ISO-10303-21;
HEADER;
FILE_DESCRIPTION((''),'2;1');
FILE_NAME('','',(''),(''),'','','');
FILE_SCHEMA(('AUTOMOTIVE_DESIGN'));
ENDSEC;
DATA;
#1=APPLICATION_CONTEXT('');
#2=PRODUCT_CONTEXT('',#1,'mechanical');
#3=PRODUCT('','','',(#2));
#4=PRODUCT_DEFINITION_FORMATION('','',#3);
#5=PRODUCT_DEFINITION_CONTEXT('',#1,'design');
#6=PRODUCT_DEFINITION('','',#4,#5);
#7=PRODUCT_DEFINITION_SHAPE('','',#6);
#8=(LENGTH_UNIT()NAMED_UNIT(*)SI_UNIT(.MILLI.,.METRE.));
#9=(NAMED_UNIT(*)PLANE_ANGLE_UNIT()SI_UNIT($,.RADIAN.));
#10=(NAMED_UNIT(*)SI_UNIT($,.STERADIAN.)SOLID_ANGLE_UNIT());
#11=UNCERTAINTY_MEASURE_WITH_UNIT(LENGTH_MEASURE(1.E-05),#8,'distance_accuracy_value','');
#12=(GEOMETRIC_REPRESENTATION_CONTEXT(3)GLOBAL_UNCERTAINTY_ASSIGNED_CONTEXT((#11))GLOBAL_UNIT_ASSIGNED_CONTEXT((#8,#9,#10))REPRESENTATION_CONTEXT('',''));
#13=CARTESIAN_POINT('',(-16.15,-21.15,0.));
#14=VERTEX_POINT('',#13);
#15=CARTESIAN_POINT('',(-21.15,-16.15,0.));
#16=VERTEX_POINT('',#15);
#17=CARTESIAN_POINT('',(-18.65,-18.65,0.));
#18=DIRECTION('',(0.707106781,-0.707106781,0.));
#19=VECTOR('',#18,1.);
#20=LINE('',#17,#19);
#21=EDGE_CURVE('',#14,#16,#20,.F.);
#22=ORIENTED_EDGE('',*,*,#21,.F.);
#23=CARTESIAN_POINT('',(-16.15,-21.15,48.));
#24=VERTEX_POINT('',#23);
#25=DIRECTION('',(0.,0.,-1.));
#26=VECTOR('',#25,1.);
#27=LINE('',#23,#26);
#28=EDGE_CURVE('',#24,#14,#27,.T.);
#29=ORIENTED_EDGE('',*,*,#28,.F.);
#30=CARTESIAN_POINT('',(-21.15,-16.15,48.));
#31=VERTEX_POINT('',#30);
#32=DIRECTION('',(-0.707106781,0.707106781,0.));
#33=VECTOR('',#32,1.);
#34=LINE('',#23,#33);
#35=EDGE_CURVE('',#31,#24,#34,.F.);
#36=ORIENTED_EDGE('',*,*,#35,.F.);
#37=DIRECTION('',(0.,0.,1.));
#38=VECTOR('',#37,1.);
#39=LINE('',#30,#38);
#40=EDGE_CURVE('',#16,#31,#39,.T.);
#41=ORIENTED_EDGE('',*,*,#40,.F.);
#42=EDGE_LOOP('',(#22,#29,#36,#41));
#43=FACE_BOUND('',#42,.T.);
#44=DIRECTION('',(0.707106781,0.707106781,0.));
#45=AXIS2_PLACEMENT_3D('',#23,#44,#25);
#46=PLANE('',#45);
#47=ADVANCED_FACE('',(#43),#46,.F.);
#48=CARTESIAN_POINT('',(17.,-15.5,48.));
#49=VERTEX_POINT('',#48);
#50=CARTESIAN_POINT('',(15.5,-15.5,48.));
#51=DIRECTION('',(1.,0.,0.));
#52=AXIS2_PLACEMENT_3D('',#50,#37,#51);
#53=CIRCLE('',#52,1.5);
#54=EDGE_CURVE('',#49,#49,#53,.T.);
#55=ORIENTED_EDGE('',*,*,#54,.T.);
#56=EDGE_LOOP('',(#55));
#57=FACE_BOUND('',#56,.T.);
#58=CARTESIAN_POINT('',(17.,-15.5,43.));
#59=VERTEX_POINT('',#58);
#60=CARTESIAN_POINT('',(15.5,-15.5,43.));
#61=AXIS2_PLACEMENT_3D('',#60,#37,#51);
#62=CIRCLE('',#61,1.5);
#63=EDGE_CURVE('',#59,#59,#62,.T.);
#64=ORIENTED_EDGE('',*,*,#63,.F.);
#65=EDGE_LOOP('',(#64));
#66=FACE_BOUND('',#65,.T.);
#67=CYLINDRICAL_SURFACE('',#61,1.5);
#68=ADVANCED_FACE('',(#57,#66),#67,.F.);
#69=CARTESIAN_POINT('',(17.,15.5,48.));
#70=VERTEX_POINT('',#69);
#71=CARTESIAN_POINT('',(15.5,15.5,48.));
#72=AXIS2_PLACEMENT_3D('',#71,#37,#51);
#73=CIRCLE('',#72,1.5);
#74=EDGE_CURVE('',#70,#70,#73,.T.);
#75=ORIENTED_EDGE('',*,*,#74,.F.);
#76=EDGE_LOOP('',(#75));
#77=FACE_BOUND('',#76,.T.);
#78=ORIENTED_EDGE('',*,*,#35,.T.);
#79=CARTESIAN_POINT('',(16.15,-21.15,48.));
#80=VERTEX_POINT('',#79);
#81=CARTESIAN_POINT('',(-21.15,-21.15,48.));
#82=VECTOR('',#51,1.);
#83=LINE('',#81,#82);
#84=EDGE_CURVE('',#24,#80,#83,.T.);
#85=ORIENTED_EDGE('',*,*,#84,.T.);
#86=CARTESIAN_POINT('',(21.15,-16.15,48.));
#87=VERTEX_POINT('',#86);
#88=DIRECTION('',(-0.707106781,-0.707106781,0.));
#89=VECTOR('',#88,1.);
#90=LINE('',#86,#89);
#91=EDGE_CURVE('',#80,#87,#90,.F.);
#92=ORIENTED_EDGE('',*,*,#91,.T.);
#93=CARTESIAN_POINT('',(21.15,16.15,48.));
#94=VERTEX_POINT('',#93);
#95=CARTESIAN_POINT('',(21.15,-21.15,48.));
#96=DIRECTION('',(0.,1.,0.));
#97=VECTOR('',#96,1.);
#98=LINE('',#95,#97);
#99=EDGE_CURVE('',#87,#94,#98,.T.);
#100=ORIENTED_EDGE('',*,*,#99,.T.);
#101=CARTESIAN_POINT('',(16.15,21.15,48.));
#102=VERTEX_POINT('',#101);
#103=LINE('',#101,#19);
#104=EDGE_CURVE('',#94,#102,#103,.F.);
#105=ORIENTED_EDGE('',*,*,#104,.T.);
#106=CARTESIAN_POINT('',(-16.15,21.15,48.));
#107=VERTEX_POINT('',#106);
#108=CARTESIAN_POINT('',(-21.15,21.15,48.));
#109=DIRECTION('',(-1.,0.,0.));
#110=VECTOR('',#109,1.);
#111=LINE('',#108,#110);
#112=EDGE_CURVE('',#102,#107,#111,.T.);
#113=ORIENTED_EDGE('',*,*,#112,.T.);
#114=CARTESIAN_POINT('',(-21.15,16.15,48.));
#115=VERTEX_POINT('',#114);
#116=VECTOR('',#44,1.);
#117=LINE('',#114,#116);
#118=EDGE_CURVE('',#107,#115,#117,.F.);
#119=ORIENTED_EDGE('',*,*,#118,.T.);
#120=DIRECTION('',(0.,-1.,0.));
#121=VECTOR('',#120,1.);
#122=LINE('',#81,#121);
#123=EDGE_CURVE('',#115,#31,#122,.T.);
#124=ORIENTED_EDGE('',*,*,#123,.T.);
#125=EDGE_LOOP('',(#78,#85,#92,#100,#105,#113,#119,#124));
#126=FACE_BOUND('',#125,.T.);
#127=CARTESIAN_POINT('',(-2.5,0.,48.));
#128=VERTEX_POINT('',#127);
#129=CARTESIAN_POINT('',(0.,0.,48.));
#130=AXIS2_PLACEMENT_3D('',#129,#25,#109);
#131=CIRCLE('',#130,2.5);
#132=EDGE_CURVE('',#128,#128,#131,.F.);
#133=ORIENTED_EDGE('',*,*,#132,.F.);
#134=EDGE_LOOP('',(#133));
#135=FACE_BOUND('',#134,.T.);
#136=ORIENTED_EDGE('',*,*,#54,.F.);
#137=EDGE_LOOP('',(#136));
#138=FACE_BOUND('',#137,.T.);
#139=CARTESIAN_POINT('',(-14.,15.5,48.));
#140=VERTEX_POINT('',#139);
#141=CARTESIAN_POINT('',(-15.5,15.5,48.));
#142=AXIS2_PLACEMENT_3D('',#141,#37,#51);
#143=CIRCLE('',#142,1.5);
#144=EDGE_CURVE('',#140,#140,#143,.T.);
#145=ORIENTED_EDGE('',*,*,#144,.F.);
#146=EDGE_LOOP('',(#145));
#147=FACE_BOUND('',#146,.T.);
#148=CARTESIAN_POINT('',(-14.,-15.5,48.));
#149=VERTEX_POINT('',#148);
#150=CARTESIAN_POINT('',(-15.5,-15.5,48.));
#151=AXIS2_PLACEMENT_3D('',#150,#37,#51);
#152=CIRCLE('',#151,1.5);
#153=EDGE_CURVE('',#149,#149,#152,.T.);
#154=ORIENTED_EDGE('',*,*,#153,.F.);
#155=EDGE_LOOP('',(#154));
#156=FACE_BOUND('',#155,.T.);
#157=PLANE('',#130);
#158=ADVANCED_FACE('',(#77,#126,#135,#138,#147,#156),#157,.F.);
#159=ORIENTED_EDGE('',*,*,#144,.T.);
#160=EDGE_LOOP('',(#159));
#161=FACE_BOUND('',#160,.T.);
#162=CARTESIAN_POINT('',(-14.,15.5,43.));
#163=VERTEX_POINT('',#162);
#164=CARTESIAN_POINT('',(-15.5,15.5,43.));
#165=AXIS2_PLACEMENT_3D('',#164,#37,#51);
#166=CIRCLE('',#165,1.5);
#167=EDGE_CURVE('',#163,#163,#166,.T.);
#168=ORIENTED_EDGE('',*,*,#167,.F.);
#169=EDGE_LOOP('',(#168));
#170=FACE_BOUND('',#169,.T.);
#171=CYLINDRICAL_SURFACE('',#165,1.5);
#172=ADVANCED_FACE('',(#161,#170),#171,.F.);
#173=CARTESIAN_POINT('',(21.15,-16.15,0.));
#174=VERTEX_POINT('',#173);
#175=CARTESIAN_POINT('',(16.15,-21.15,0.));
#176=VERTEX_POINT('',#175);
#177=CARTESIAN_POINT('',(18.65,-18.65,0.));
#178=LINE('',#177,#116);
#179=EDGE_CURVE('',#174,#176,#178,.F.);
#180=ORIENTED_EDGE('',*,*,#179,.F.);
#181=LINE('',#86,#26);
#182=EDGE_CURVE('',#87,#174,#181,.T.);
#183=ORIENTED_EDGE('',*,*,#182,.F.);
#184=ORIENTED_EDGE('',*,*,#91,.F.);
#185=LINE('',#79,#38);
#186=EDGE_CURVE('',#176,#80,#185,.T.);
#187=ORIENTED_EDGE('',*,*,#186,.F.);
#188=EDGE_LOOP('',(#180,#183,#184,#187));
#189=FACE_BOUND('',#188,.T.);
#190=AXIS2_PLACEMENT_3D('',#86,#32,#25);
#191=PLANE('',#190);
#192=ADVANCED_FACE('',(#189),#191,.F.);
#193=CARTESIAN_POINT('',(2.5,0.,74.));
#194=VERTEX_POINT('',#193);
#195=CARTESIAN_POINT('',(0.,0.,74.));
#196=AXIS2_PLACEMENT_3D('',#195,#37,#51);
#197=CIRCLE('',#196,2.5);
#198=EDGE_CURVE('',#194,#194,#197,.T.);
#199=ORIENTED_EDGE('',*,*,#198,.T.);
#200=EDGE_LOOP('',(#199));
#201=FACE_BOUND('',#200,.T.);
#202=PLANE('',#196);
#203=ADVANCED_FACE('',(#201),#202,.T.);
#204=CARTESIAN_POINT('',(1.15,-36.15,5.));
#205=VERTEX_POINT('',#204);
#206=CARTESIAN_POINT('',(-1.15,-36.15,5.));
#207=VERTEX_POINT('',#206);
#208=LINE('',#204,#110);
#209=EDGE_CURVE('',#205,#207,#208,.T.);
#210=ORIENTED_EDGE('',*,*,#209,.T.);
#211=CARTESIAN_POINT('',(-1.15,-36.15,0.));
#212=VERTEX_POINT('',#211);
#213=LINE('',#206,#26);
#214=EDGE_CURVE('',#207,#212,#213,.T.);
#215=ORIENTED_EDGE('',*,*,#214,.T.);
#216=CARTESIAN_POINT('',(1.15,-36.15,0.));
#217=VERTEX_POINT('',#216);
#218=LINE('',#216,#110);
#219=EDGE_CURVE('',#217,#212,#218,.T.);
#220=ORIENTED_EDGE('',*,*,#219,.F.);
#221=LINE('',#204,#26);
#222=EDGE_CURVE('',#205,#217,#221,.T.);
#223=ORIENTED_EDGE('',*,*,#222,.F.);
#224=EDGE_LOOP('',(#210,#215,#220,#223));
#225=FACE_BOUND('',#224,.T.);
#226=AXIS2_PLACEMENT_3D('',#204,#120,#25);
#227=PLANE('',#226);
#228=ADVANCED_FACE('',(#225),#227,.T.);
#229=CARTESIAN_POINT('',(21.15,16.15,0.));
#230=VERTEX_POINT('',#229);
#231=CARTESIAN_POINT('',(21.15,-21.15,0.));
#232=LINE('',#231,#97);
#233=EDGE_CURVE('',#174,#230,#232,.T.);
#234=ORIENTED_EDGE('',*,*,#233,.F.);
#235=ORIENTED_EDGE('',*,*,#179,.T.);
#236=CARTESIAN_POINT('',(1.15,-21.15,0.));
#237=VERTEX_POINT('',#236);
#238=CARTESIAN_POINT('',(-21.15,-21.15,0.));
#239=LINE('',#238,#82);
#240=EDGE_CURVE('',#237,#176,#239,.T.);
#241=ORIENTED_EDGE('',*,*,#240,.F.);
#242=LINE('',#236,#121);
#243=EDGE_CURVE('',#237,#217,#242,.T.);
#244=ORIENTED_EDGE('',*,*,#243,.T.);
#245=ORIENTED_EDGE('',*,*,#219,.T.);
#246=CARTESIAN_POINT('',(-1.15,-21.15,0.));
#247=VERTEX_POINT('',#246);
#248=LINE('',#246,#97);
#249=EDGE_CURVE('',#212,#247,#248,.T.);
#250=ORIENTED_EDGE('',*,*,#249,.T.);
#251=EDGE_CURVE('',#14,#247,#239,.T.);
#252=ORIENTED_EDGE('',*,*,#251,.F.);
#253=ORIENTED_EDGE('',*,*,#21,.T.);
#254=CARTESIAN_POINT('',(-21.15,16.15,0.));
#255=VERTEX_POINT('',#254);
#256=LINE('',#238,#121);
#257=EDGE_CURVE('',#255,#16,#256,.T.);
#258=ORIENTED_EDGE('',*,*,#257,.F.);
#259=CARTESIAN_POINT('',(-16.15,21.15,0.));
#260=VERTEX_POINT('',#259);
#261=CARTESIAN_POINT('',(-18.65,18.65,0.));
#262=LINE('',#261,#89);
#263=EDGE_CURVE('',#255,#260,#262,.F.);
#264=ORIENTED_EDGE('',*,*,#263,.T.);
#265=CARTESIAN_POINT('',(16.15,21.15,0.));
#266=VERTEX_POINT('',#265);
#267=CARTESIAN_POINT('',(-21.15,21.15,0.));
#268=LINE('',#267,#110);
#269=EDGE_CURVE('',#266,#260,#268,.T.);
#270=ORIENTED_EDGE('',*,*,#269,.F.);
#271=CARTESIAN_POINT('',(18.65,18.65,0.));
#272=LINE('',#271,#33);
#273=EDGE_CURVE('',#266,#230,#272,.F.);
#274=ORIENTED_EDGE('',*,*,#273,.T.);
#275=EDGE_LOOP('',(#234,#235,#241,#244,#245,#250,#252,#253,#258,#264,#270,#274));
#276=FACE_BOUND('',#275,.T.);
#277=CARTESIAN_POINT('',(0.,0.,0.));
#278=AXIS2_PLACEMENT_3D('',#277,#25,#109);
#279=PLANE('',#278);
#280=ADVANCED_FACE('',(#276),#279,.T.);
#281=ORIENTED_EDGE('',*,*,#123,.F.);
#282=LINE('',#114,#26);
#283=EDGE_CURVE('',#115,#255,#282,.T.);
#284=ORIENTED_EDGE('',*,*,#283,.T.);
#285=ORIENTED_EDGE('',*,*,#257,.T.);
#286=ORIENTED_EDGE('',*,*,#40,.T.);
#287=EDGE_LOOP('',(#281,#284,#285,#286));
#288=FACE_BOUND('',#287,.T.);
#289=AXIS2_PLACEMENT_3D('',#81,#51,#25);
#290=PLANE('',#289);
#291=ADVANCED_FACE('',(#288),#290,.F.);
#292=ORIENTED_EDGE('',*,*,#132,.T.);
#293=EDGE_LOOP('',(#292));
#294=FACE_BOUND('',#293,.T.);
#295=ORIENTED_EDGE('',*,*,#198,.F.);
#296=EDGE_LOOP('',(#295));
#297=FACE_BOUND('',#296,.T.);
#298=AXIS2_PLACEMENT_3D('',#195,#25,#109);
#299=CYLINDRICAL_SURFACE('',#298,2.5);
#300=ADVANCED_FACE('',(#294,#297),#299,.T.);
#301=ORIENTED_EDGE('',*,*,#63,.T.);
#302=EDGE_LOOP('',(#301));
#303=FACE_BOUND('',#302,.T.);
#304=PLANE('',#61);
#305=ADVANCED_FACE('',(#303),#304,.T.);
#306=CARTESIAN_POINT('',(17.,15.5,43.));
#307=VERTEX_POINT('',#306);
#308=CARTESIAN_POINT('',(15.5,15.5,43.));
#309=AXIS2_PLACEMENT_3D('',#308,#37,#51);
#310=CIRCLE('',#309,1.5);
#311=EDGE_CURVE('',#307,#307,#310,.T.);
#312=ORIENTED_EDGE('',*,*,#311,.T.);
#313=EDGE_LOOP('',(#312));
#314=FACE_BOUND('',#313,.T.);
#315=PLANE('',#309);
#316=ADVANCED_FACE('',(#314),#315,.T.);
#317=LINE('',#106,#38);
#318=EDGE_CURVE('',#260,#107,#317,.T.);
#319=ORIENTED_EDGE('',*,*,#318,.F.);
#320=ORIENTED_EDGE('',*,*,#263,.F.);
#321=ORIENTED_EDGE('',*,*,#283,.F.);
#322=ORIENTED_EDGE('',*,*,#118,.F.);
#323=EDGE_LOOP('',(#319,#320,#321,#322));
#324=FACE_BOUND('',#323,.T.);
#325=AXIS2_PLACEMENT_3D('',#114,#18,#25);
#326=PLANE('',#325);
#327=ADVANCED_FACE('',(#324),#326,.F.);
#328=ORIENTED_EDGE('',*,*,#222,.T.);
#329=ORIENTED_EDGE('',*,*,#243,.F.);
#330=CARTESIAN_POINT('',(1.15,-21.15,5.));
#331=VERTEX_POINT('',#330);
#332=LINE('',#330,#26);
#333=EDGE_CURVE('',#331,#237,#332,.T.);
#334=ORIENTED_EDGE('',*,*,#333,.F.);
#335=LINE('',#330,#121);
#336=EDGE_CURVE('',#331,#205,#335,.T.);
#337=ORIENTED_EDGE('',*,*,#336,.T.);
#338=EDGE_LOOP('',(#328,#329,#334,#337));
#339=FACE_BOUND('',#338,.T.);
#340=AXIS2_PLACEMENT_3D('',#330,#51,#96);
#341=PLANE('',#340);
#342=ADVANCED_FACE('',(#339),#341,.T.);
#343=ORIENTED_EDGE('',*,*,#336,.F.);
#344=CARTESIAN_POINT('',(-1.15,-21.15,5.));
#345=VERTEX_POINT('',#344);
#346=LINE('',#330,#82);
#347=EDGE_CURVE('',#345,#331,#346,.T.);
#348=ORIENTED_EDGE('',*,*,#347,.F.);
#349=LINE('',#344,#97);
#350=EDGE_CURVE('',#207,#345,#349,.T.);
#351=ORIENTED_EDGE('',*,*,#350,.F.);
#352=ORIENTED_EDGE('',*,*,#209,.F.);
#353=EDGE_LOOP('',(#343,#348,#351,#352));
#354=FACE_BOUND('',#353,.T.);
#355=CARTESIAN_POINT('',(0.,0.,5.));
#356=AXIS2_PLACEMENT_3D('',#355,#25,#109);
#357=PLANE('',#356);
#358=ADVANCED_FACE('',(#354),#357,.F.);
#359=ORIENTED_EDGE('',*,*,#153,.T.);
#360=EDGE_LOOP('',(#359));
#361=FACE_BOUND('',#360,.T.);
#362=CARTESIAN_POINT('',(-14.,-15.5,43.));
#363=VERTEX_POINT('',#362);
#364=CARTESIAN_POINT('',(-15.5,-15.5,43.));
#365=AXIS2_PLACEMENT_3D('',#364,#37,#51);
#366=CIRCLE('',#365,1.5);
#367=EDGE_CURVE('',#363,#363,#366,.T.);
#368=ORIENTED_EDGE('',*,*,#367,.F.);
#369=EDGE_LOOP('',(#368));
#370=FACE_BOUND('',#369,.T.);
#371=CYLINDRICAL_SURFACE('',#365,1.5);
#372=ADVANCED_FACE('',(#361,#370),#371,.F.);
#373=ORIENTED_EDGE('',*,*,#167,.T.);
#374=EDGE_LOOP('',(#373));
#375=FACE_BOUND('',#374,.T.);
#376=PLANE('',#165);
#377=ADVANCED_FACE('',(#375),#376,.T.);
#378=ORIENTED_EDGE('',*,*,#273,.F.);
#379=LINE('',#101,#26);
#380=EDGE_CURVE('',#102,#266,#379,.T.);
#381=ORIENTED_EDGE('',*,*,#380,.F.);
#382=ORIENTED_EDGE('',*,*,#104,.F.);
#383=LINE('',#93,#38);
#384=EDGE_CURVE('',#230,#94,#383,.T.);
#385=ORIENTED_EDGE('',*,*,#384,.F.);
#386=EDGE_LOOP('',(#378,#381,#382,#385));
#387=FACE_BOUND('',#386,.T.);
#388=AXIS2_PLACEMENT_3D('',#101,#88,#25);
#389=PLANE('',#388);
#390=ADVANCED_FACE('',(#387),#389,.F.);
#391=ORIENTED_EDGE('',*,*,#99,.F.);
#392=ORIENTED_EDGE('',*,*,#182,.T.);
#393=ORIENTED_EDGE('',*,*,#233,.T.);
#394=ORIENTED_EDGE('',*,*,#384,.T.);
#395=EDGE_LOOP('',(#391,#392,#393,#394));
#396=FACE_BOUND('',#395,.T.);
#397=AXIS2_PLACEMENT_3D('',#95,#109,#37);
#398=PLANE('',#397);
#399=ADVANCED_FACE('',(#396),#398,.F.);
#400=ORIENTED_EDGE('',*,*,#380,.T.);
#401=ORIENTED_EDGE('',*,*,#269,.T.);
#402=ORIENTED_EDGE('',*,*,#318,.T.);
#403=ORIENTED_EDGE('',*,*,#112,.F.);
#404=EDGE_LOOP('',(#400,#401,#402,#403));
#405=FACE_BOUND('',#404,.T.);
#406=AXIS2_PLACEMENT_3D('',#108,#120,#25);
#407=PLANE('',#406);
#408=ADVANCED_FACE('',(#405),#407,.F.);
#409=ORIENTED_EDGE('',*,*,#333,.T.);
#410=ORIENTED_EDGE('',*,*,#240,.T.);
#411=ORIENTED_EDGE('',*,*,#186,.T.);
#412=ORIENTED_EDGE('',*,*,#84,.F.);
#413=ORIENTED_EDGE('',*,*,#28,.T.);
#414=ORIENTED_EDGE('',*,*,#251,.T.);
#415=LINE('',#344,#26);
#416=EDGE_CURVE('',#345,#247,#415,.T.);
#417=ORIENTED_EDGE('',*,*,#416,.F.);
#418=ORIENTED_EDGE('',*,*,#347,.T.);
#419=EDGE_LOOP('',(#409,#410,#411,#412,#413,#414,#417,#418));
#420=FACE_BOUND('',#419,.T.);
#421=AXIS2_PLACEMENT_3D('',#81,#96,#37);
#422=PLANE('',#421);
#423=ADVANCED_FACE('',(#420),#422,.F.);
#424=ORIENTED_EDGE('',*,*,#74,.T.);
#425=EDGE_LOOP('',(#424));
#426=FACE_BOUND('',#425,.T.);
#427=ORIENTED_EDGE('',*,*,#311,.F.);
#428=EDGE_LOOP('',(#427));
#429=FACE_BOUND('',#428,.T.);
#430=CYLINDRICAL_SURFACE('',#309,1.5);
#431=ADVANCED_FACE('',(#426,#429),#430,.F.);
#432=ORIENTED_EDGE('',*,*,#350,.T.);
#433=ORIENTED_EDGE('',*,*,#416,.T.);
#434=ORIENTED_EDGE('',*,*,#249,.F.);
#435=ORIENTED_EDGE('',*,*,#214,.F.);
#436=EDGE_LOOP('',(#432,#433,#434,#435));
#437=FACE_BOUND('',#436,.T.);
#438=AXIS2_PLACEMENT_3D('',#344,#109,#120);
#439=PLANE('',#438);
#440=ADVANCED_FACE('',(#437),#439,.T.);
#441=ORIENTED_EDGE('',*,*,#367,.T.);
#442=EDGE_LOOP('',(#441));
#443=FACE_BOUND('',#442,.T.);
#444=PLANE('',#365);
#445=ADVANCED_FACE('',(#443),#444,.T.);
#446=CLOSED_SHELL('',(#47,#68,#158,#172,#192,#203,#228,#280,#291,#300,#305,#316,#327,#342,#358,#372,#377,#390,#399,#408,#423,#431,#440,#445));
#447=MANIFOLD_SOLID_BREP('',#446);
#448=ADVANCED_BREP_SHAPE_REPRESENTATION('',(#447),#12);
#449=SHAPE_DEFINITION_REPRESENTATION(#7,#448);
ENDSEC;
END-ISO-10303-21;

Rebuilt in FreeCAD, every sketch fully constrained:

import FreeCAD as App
import Part
import Sketcher

V = App.Vector


def edges_at(feature, points):
    """Names of the edges that pass closest to the given points."""
    edges = feature.Shape.Edges
    near = lambda p: min(range(len(edges)), key=lambda i: edges[i].distToShape(Part.Vertex(*p))[0])
    return sorted({f"Edge{near(p) + 1}" for p in points})


def add_polygon(sketch, points):
    """Adds a closed chain of lines whose ends are joined by coincident constraints."""
    first, n = sketch.GeometryCount, len(points)
    for a, b in zip(points, points[1:] + points[:1]):
        sketch.addGeometry(Part.LineSegment(App.Vector(*a, 0), App.Vector(*b, 0)), False)
    for i in range(n):
        sketch.addConstraint(Sketcher.Constraint("Coincident", first + i, 2, first + (i + 1) % n, 1))

doc = App.newDocument("Part")
body = doc.addObject("PartDesign::Body", "Body")

sketch1 = doc.addObject("Sketcher::SketchObject", "Sketch")
body.addObject(sketch1)
sketch1.AttachmentSupport = (doc.XY_Plane, [""])
sketch1.MapMode = "FlatFace"
add_polygon(sketch1, [(-21, 21), (-21, -21), (21, -21), (21, 21)])
sketch1.addConstraint([
    Sketcher.Constraint("Vertical", 0),
    Sketcher.Constraint("Horizontal", 1),
    Sketcher.Constraint("Vertical", 2),
    Sketcher.Constraint("Horizontal", 3),
    Sketcher.Constraint("Symmetric", 0, 2, 2, 2, -1, 1),
    Sketcher.Constraint("Equal", 3, 0),
    Sketcher.Constraint("DistanceX", 1, 1, 1, 2, 42.3),
])
pad1 = doc.addObject("PartDesign::Pad", "Pad")
body.addObject(pad1)
pad1.Profile = sketch1
pad1.Length = 48
doc.recompute()

chamfer = doc.addObject("PartDesign::Chamfer", "Chamfer")
body.addObject(chamfer)
chamfer.Base = (pad1, edges_at(pad1, [
    (21.15, -21.15, 24),
    (-21.15, -21.15, 24),
    (-21.15, 21.15, 24),
    (21.15, 21.15, 24),
]))
chamfer.Size = 5

sketch2 = doc.addObject("Sketcher::SketchObject", "Sketch001")
body.addObject(sketch2)
sketch2.AttachmentSupport = (doc.XY_Plane, [""])
sketch2.MapMode = "FlatFace"
sketch2.AttachmentOffset = App.Placement(V(0, 0, 48), App.Rotation())
sketch2.addGeometry(Part.Circle(V(0, 0, 0), V(0, 0, 1), 2.5), False)
sketch2.addConstraint([
    Sketcher.Constraint("Coincident", 0, 3, -1, 1),
    Sketcher.Constraint("Diameter", 0, 5.0),
])
pad2 = doc.addObject("PartDesign::Pad", "Pad001")
body.addObject(pad2)
pad2.Profile = sketch2
pad2.Length = 26

sketch3 = doc.addObject("Sketcher::SketchObject", "Sketch002")
body.addObject(sketch3)
sketch3.AttachmentSupport = (doc.XY_Plane, [""])
sketch3.MapMode = "FlatFace"
add_polygon(sketch3, [(1.1, -21.1), (1.1, -36.1), (-1.1, -36.1), (-1.1, -21.1)])
sketch3.addConstraint([
    Sketcher.Constraint("Vertical", 0),
    Sketcher.Constraint("Horizontal", 1),
    Sketcher.Constraint("Vertical", 2),
    Sketcher.Constraint("Horizontal", 3),
    Sketcher.Constraint("DistanceY", 0, 2, 0, 1, 15.0),
    Sketcher.Constraint("DistanceX", 1, 2, 1, 1, 2.3),
    Sketcher.Constraint("DistanceX", -1, 1, 0, 2, 1.15),
    Sketcher.Constraint("DistanceY", 0, 2, -1, 1, 36.15),
])
pad3 = doc.addObject("PartDesign::Pad", "Pad002")
body.addObject(pad3)
pad3.Profile = sketch3
pad3.Length = 5

sketch4 = doc.addObject("Sketcher::SketchObject", "Sketch003")
body.addObject(sketch4)
sketch4.AttachmentSupport = (doc.XY_Plane, [""])
sketch4.MapMode = "FlatFace"
sketch4.AttachmentOffset = App.Placement(V(0, 0, 48), App.Rotation())
sketch4.addGeometry([
    Part.Circle(V(-15.5, 15.5, 0), V(0, 0, 1), 1.5),
    Part.Circle(V(-15.5, -15.5, 0), V(0, 0, 1), 1.5),
    Part.Circle(V(15.5, -15.5, 0), V(0, 0, 1), 1.5),
    Part.Circle(V(15.5, 15.5, 0), V(0, 0, 1), 1.5),
], False)
sketch4.addConstraint([
    Sketcher.Constraint("Equal", 0, 1),
    Sketcher.Constraint("Equal", 1, 2),
    Sketcher.Constraint("Equal", 2, 3),
    Sketcher.Constraint("Symmetric", 0, 3, 2, 3, -1, 1),
    Sketcher.Constraint("Symmetric", 1, 3, 3, 3, -1, 1),
    Sketcher.Constraint("Symmetric", 1, 3, 2, 3, -2),
    Sketcher.Constraint("Diameter", 0, 3.0),
    Sketcher.Constraint("DistanceY", 1, 3, 0, 3, 31.0),
    Sketcher.Constraint("DistanceX", 1, 3, 2, 3, 31.0),
])
pocket1 = doc.addObject("PartDesign::Pocket", "Pocket")
body.addObject(pocket1)
pocket1.Profile = sketch4
pocket1.Length = 5

doc.recompute()
